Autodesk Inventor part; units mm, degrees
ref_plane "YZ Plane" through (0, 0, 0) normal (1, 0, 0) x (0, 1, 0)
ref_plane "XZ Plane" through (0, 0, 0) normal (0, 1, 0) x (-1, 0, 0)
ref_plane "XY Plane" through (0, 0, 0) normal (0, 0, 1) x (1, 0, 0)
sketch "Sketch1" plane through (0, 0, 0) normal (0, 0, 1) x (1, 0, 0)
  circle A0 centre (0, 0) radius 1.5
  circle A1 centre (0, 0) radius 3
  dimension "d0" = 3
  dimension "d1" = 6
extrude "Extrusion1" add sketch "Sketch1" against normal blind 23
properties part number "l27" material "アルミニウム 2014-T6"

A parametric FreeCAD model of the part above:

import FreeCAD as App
import Part
import Sketcher

doc = App.newDocument("Part")
body = doc.addObject("PartDesign::Body", "Body")

sketch1 = body.newObject("Sketcher::SketchObject", "Sketch")
sketch1.AttachmentSupport = (doc.getObject("XY_Plane"), [""])
sketch1.MapMode = "FlatFace"
sketch1.addGeometry(Part.Circle(App.Vector(0, 0, 0), App.Vector(0, 0, 1), 3), False)
sketch1.addGeometry(Part.Circle(App.Vector(0, 0, 0), App.Vector(0, 0, 1), 1.5), False)
sketch1.addConstraint(Sketcher.Constraint("Coincident", 0, 3, -1, 1))
sketch1.addConstraint(Sketcher.Constraint("Coincident", 1, 3, -1, 1))
sketch1.addConstraint(Sketcher.Constraint("Diameter", 0, 6.0))
sketch1.addConstraint(Sketcher.Constraint("Diameter", 1, 3.0))
pad1 = body.newObject("PartDesign::Pad", "Pad")
pad1.Profile = sketch1
pad1.Length = 23
pad1.Reversed = True

doc.recompute()
